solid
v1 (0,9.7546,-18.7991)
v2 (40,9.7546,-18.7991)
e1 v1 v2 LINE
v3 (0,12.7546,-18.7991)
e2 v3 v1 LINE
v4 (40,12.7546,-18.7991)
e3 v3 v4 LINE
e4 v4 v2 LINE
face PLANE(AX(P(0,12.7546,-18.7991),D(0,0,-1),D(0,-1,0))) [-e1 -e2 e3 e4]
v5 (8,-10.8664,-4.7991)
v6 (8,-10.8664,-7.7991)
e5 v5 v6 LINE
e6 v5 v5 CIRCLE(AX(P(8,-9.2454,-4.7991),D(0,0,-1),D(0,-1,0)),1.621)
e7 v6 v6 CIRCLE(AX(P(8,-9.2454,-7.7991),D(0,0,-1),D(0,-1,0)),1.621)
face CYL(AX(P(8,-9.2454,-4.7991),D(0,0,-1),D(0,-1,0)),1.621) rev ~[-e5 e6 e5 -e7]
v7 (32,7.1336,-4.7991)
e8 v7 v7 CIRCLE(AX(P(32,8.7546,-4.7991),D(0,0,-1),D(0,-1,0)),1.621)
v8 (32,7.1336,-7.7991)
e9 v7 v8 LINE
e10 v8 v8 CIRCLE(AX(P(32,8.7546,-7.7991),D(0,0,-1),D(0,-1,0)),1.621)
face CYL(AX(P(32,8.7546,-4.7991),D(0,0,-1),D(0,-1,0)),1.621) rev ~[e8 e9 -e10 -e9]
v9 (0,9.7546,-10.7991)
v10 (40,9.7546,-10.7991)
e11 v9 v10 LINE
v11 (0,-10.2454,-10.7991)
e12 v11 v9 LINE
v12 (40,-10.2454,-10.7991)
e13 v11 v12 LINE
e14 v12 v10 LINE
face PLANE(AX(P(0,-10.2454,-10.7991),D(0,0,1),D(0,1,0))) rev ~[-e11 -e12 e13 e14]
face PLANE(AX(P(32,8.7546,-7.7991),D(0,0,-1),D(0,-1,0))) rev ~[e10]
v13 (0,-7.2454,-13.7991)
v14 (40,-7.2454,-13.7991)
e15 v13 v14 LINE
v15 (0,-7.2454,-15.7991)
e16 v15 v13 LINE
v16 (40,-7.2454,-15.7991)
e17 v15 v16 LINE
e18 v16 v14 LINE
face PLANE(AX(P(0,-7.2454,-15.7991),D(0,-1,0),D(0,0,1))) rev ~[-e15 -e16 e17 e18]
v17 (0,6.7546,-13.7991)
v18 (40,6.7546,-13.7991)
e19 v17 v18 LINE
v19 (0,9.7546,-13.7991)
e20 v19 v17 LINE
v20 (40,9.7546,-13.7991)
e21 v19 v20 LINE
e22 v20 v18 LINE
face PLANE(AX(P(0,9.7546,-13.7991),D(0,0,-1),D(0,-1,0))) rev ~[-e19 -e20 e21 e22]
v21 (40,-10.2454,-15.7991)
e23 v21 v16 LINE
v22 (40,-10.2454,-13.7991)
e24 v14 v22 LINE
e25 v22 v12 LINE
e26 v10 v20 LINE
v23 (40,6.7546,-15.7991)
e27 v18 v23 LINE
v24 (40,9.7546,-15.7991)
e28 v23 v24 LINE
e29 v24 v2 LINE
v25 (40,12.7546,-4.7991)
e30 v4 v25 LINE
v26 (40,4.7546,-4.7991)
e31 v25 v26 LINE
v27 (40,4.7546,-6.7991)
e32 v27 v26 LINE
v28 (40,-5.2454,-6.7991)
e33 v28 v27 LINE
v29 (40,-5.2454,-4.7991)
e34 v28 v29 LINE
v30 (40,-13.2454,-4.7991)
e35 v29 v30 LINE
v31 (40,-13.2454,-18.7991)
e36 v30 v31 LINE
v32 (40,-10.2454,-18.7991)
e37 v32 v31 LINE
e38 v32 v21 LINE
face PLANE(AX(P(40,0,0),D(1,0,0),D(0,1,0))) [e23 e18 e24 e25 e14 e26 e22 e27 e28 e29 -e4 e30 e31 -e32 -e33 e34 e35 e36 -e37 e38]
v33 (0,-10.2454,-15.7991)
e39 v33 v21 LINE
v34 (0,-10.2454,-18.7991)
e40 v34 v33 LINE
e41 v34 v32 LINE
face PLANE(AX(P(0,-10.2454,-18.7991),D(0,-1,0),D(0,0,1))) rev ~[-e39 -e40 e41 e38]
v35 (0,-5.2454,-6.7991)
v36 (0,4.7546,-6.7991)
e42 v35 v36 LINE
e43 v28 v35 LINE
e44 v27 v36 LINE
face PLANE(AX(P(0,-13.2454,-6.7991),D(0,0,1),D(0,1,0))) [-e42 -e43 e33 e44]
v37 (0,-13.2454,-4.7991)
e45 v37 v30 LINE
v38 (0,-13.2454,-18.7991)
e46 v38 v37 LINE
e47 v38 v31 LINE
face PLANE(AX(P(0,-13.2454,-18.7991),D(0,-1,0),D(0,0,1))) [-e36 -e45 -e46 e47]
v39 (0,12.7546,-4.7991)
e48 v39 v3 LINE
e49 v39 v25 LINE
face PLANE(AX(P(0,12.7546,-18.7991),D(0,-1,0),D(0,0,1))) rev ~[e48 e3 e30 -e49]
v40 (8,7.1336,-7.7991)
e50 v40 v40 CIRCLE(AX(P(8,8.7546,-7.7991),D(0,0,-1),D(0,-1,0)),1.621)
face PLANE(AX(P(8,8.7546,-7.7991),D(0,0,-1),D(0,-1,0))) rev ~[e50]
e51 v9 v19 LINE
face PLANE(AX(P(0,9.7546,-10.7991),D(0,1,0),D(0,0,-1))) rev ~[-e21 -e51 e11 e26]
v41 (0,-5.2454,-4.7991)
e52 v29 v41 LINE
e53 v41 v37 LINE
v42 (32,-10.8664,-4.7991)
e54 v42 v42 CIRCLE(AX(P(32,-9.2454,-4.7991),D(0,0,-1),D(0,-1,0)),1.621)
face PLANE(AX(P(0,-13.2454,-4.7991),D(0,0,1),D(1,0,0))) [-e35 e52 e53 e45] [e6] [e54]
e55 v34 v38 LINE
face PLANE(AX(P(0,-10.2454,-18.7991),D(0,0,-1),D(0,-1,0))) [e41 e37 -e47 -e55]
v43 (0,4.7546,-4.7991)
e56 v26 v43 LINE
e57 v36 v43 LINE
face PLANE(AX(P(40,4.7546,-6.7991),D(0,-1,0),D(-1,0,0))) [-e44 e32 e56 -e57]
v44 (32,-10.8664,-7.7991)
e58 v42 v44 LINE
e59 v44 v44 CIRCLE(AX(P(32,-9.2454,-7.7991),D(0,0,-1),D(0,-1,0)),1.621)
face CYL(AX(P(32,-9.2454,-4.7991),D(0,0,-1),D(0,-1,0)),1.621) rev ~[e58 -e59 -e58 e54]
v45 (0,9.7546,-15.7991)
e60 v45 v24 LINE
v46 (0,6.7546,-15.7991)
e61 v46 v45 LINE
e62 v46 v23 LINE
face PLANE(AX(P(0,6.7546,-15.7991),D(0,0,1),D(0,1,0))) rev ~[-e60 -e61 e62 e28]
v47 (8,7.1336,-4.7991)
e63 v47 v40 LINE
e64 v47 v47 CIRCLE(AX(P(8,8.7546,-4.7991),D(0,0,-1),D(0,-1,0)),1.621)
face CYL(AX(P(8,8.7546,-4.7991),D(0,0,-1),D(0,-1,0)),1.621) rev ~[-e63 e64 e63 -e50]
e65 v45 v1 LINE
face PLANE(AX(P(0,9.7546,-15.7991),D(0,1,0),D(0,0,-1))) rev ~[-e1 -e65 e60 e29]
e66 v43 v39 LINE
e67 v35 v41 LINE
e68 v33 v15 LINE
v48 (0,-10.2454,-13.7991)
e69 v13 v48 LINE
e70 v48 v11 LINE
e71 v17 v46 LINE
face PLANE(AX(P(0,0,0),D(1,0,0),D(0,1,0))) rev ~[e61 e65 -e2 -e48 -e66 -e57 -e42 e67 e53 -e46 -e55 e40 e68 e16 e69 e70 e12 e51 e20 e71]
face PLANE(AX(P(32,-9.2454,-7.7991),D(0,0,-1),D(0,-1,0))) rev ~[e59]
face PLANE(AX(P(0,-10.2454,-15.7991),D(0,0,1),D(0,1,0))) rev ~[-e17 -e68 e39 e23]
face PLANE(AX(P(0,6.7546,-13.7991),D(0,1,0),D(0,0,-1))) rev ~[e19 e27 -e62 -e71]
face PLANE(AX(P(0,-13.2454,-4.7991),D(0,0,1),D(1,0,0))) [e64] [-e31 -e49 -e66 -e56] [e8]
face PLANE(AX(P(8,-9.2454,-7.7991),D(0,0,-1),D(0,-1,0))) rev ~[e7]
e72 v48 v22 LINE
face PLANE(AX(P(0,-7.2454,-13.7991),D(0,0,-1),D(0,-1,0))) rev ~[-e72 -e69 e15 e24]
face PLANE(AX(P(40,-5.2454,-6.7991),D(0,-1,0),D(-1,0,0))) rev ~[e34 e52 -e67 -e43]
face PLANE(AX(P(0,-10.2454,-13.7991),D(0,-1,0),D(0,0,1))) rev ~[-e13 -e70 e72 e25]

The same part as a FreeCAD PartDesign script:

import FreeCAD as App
import Part
import Sketcher
from FreeCAD import Vector
Q = App.Units.Quantity

doc = App.newDocument("Part")
body = doc.addObject("PartDesign::Body", "Body")

# Sketch on YZ plane
sketch1 = body.newObject("Sketcher::SketchObject", "Sketch")
sketch1.AttachmentSupport = (doc.getObject("YZ_Plane"), [""])
sketch1.MapMode = "FlatFace"
sketch1.addGeometry(Part.LineSegment(Vector(6.8, -15.8, 0), Vector(9.8, -15.8, 0)), False)
sketch1.addGeometry(Part.LineSegment(Vector(9.8, -15.8, 0), Vector(9.8, -18.8, 0)), False)
sketch1.addGeometry(Part.LineSegment(Vector(9.8, -18.8, 0), Vector(12.8, -18.8, 0)), False)
sketch1.addGeometry(Part.LineSegment(Vector(12.8, -18.8, 0), Vector(12.8, -6.8, 0)), False)
sketch1.addGeometry(Part.LineSegment(Vector(12.8, -6.8, 0), Vector(-13.2, -6.8, 0)), False)
sketch1.addGeometry(Part.LineSegment(Vector(-13.2, -6.8, 0), Vector(-13.2, -18.8, 0)), False)
sketch1.addGeometry(Part.LineSegment(Vector(-13.2, -18.8, 0), Vector(-10.2, -18.8, 0)), False)
sketch1.addGeometry(Part.LineSegment(Vector(-10.2, -18.8, 0), Vector(-10.2, -15.8, 0)), False)
sketch1.addGeometry(Part.LineSegment(Vector(-10.2, -15.8, 0), Vector(-7.2, -15.8, 0)), False)
sketch1.addGeometry(Part.LineSegment(Vector(-7.2, -15.8, 0), Vector(-7.2, -13.8, 0)), False)
sketch1.addGeometry(Part.LineSegment(Vector(-7.2, -13.8, 0), Vector(-10.2, -13.8, 0)), False)
sketch1.addGeometry(Part.LineSegment(Vector(-10.2, -13.8, 0), Vector(-10.2, -10.8, 0)), False)
sketch1.addGeometry(Part.LineSegment(Vector(-10.2, -10.8, 0), Vector(9.8, -10.8, 0)), False)
sketch1.addGeometry(Part.LineSegment(Vector(9.8, -10.8, 0), Vector(9.8, -13.8, 0)), False)
sketch1.addGeometry(Part.LineSegment(Vector(9.8, -13.8, 0), Vector(6.8, -13.8, 0)), False)
sketch1.addGeometry(Part.LineSegment(Vector(6.8, -13.8, 0), Vector(6.8, -15.8, 0)), False)
sketch1.addConstraint(Sketcher.Constraint("Coincident", 0, 2, 1, 1))
sketch1.addConstraint(Sketcher.Constraint("Coincident", 1, 2, 2, 1))
sketch1.addConstraint(Sketcher.Constraint("Coincident", 2, 2, 3, 1))
sketch1.addConstraint(Sketcher.Constraint("Coincident", 3, 2, 4, 1))
sketch1.addConstraint(Sketcher.Constraint("Coincident", 4, 2, 5, 1))
sketch1.addConstraint(Sketcher.Constraint("Coincident", 5, 2, 6, 1))
sketch1.addConstraint(Sketcher.Constraint("Coincident", 6, 2, 7, 1))
sketch1.addConstraint(Sketcher.Constraint("Coincident", 7, 2, 8, 1))
sketch1.addConstraint(Sketcher.Constraint("Coincident", 8, 2, 9, 1))
sketch1.addConstraint(Sketcher.Constraint("Coincident", 9, 2, 10, 1))
sketch1.addConstraint(Sketcher.Constraint("Coincident", 10, 2, 11, 1))
sketch1.addConstraint(Sketcher.Constraint("Coincident", 11, 2, 12, 1))
sketch1.addConstraint(Sketcher.Constraint("Coincident", 12, 2, 13, 1))
sketch1.addConstraint(Sketcher.Constraint("Coincident", 13, 2, 14, 1))
sketch1.addConstraint(Sketcher.Constraint("Coincident", 14, 2, 15, 1))
sketch1.addConstraint(Sketcher.Constraint("Coincident", 15, 2, 0, 1))
sketch1.addConstraint(Sketcher.Constraint("Horizontal", 0))
sketch1.addConstraint(Sketcher.Constraint("Vertical", 1))
sketch1.addConstraint(Sketcher.Constraint("Horizontal", 2))
sketch1.addConstraint(Sketcher.Constraint("Vertical", 3))
sketch1.addConstraint(Sketcher.Constraint("Horizontal", 4))
sketch1.addConstraint(Sketcher.Constraint("Vertical", 5))
sketch1.addConstraint(Sketcher.Constraint("Horizontal", 6))
sketch1.addConstraint(Sketcher.Constraint("Vertical", 7))
sketch1.addConstraint(Sketcher.Constraint("Horizontal", 8))
sketch1.addConstraint(Sketcher.Constraint("Vertical", 9))
sketch1.addConstraint(Sketcher.Constraint("Horizontal", 10))
sketch1.addConstraint(Sketcher.Constraint("Vertical", 11))
sketch1.addConstraint(Sketcher.Constraint("Horizontal", 12))
sketch1.addConstraint(Sketcher.Constraint("Vertical", 13))
sketch1.addConstraint(Sketcher.Constraint("Horizontal", 14))
sketch1.addConstraint(Sketcher.Constraint("Vertical", 15))
sketch1.addConstraint(Sketcher.Constraint("Horizontal", 2, 2, 5, 2))
sketch1.addConstraint(Sketcher.Constraint("Horizontal", 0, 2, 7, 2))
sketch1.addConstraint(Sketcher.Constraint("Horizontal", 10, 2, 13, 2))
sketch1.addConstraint(Sketcher.Constraint("Vertical", 7, 2, 10, 2))
sketch1.addConstraint(Sketcher.Constraint("Vertical", 1, 2, 12, 2))
sketch1.addConstraint(Sketcher.Constraint("Equal", 0, 2))
sketch1.addConstraint(Sketcher.Constraint("Equal", 2, 6))
sketch1.addConstraint(Sketcher.Constraint("Equal", 6, 8))
sketch1.addConstraint(Sketcher.Constraint("Equal", 14, 1))
sketch1.addConstraint(Sketcher.Constraint("Equal", 7, 11))
sketch1.addConstraint(Sketcher.Constraint("DistanceX", 0, 1, 0, 2, Q("3 mm")))
sketch1.addConstraint(Sketcher.Constraint("DistanceY", 3, 1, 3, 2, Q("12 mm")))
sketch1.addConstraint(Sketcher.Constraint("DistanceX", 4, 2, 4, 1, Q("26 mm")))
sketch1.addConstraint(Sketcher.Constraint("DistanceY", 9, 1, 9, 2, Q("2 mm")))
sketch1.addConstraint(Sketcher.Constraint("DistanceY", 0, 2, -1, 1, Q("15.799 mm")))
sketch1.addConstraint(Sketcher.Constraint("DistanceX", -1, 1, 0, 2, Q("9.7546 mm")))
pad1 = body.newObject("PartDesign::Pad", "Pad")
pad1.Profile = sketch1
pad1.Length = 40

# Sketch on XY plane
sketch2 = body.newObject("Sketcher::SketchObject", "Sketch001")
sketch2.AttachmentSupport = (doc.getObject("XY_Plane"), [""])
sketch2.MapMode = "FlatFace"
sketch2.AttachmentOffset = App.Placement(Vector(0, 0, -6.7991), App.Rotation())
sketch2.addGeometry(Part.LineSegment(Vector(40, -13, 0), Vector(40, -5, 0)), False)
sketch2.addGeometry(Part.LineSegment(Vector(40, -5, 0), Vector(0, -5, 0)), False)
sketch2.addGeometry(Part.LineSegment(Vector(0, -5, 0), Vector(0, -13, 0)), False)
sketch2.addGeometry(Part.LineSegment(Vector(0, -13, 0), Vector(40, -13, 0)), False)
sketch2.addGeometry(Part.LineSegment(Vector(40, 5, 0), Vector(40, 13, 0)), False)
sketch2.addGeometry(Part.LineSegment(Vector(40, 13, 0), Vector(0, 13, 0)), False)
sketch2.addGeometry(Part.LineSegment(Vector(0, 13, 0), Vector(0, 5, 0)), False)
sketch2.addGeometry(Part.LineSegment(Vector(0, 5, 0), Vector(40, 5, 0)), False)
sketch2.addConstraint(Sketcher.Constraint("Coincident", 0, 2, 1, 1))
sketch2.addConstraint(Sketcher.Constraint("Coincident", 1, 2, 2, 1))
sketch2.addConstraint(Sketcher.Constraint("Coincident", 2, 2, 3, 1))
sketch2.addConstraint(Sketcher.Constraint("Coincident", 3, 2, 0, 1))
sketch2.addConstraint(Sketcher.Constraint("Coincident", 4, 2, 5, 1))
sketch2.addConstraint(Sketcher.Constraint("Coincident", 5, 2, 6, 1))
sketch2.addConstraint(Sketcher.Constraint("Coincident", 6, 2, 7, 1))
sketch2.addConstraint(Sketcher.Constraint("Coincident", 7, 2, 4, 1))
sketch2.addConstraint(Sketcher.Constraint("Vertical", 0))
sketch2.addConstraint(Sketcher.Constraint("Horizontal", 1))
sketch2.addConstraint(Sketcher.Constraint("Vertical", 2))
sketch2.addConstraint(Sketcher.Constraint("Horizontal", 3))
sketch2.addConstraint(Sketcher.Constraint("Vertical", 4))
sketch2.addConstraint(Sketcher.Constraint("Horizontal", 5))
sketch2.addConstraint(Sketcher.Constraint("Vertical", 6))
sketch2.addConstraint(Sketcher.Constraint("Horizontal", 7))
sketch2.addConstraint(Sketcher.Constraint("PointOnObject", 1, 2, -2))
sketch2.addConstraint(Sketcher.Constraint("PointOnObject", 5, 2, -2))
sketch2.addConstraint(Sketcher.Constraint("Vertical", 3, 2, 4, 2))
sketch2.addConstraint(Sketcher.Constraint("Equal", 2, 4))
sketch2.addConstraint(Sketcher.Constraint("DistanceY", 0, 1, 0, 2, Q("8 mm")))
sketch2.addConstraint(Sketcher.Constraint("DistanceX", 1, 2, 1, 1, Q("40 mm")))
sketch2.addConstraint(Sketcher.Constraint("DistanceY", 0, 2, 4, 2, Q("18 mm")))
sketch2.addConstraint(Sketcher.Constraint("DistanceY", 0, 2, -1, 1, Q("5.2454 mm")))
pad2 = body.newObject("PartDesign::Pad", "Pad001")
pad2.Profile = sketch2
pad2.Length = 2

# Sketch on XY plane
sketch3 = body.newObject("Sketcher::SketchObject", "Sketch002")
sketch3.AttachmentSupport = (doc.getObject("XY_Plane"), [""])
sketch3.MapMode = "FlatFace"
sketch3.AttachmentOffset = App.Placement(Vector(0, 0, -4.7991), App.Rotation())
sketch3.addGeometry(Part.Circle(Vector(8, 8.8, 0), Vector(0, 0, 1), 1.6), False)
sketch3.addGeometry(Part.Circle(Vector(32, 8.8, 0), Vector(0, 0, 1), 1.6), False)
sketch3.addGeometry(Part.Circle(Vector(32, -9.2, 0), Vector(0, 0, 1), 1.6), False)
sketch3.addGeometry(Part.Circle(Vector(8, -9.2, 0), Vector(0, 0, 1), 1.6), False)
sketch3.addConstraint(Sketcher.Constraint("Equal", 0, 1))
sketch3.addConstraint(Sketcher.Constraint("Equal", 1, 2))
sketch3.addConstraint(Sketcher.Constraint("Equal", 2, 3))
sketch3.addConstraint(Sketcher.Constraint("Horizontal", 0, 3, 1, 3))
sketch3.addConstraint(Sketcher.Constraint("Horizontal", 2, 3, 3, 3))
sketch3.addConstraint(Sketcher.Constraint("Vertical", 1, 3, 2, 3))
sketch3.addConstraint(Sketcher.Constraint("Vertical", 0, 3, 3, 3))
sketch3.addConstraint(Sketcher.Constraint("Diameter", 0, Q("3.242 mm")))
sketch3.addConstraint(Sketcher.Constraint("DistanceX", -1, 1, 0, 3, Q("8 mm")))
sketch3.addConstraint(Sketcher.Constraint("DistanceX", -1, 1, 1, 3, Q("32 mm")))
sketch3.addConstraint(Sketcher.Constraint("DistanceY", 2, 3, 1, 3, Q("18 mm")))
sketch3.addConstraint(Sketcher.Constraint("DistanceY", -1, 1, 0, 3, Q("8.7546 mm")))
doc.recompute()
hole = body.newObject("PartDesign::Hole", "Hole")
hole.Profile = sketch3
hole.ThreadType = "None"
hole.Diameter = 3.242
hole.DepthType = "Dimension"
hole.Depth = 3
hole.DrillPoint = "Flat"

doc.recompute()
